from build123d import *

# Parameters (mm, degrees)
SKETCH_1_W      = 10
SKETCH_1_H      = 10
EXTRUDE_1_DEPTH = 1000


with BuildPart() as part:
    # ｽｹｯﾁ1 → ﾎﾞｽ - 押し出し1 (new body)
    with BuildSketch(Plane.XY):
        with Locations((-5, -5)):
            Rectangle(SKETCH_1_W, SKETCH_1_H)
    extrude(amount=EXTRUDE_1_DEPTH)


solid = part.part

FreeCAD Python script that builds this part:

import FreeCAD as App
import Part
import Sketcher
from FreeCAD import Vector
Q = App.Units.Quantity

doc = App.newDocument("Part")
body = doc.addObject("PartDesign::Body", "Body")

sketch1 = body.newObject("Sketcher::SketchObject", "Sketch")
sketch1.AttachmentSupport = (doc.getObject("XY_Plane"), [""])
sketch1.MapMode = "FlatFace"
sketch1.addGeometry([
    Part.LineSegment(Vector(-10, 0, 0), Vector(-10, -10, 0)),
    Part.LineSegment(Vector(-10, -10, 0), Vector(0, -10, 0)),
    Part.LineSegment(Vector(0, -10, 0), Vector(0, 0, 0)),
    Part.LineSegment(Vector(0, 0, 0), Vector(-10, 0, 0)),
], False)
sketch1.addConstraint([
    Sketcher.Constraint("Coincident", 0, 2, 1, 1),
    Sketcher.Constraint("Coincident", 1, 2, 2, 1),
    Sketcher.Constraint("Coincident", 2, 2, 3, 1),
    Sketcher.Constraint("Coincident", 3, 2, 0, 1),
    Sketcher.Constraint("Vertical", 0),
    Sketcher.Constraint("Horizontal", 1),
    Sketcher.Constraint("Vertical", 2),
    Sketcher.Constraint("Horizontal", 3),
    Sketcher.Constraint("Coincident", 2, 2, -1, 1),
    Sketcher.Constraint("Equal", 3, 0),
    Sketcher.Constraint("DistanceX", 1, 1, 1, 2, Q("10 mm")),
])
pad1 = body.newObject("PartDesign::Pad", "Pad")
pad1.Profile = sketch1
pad1.Length = 1000

doc.recompute()
